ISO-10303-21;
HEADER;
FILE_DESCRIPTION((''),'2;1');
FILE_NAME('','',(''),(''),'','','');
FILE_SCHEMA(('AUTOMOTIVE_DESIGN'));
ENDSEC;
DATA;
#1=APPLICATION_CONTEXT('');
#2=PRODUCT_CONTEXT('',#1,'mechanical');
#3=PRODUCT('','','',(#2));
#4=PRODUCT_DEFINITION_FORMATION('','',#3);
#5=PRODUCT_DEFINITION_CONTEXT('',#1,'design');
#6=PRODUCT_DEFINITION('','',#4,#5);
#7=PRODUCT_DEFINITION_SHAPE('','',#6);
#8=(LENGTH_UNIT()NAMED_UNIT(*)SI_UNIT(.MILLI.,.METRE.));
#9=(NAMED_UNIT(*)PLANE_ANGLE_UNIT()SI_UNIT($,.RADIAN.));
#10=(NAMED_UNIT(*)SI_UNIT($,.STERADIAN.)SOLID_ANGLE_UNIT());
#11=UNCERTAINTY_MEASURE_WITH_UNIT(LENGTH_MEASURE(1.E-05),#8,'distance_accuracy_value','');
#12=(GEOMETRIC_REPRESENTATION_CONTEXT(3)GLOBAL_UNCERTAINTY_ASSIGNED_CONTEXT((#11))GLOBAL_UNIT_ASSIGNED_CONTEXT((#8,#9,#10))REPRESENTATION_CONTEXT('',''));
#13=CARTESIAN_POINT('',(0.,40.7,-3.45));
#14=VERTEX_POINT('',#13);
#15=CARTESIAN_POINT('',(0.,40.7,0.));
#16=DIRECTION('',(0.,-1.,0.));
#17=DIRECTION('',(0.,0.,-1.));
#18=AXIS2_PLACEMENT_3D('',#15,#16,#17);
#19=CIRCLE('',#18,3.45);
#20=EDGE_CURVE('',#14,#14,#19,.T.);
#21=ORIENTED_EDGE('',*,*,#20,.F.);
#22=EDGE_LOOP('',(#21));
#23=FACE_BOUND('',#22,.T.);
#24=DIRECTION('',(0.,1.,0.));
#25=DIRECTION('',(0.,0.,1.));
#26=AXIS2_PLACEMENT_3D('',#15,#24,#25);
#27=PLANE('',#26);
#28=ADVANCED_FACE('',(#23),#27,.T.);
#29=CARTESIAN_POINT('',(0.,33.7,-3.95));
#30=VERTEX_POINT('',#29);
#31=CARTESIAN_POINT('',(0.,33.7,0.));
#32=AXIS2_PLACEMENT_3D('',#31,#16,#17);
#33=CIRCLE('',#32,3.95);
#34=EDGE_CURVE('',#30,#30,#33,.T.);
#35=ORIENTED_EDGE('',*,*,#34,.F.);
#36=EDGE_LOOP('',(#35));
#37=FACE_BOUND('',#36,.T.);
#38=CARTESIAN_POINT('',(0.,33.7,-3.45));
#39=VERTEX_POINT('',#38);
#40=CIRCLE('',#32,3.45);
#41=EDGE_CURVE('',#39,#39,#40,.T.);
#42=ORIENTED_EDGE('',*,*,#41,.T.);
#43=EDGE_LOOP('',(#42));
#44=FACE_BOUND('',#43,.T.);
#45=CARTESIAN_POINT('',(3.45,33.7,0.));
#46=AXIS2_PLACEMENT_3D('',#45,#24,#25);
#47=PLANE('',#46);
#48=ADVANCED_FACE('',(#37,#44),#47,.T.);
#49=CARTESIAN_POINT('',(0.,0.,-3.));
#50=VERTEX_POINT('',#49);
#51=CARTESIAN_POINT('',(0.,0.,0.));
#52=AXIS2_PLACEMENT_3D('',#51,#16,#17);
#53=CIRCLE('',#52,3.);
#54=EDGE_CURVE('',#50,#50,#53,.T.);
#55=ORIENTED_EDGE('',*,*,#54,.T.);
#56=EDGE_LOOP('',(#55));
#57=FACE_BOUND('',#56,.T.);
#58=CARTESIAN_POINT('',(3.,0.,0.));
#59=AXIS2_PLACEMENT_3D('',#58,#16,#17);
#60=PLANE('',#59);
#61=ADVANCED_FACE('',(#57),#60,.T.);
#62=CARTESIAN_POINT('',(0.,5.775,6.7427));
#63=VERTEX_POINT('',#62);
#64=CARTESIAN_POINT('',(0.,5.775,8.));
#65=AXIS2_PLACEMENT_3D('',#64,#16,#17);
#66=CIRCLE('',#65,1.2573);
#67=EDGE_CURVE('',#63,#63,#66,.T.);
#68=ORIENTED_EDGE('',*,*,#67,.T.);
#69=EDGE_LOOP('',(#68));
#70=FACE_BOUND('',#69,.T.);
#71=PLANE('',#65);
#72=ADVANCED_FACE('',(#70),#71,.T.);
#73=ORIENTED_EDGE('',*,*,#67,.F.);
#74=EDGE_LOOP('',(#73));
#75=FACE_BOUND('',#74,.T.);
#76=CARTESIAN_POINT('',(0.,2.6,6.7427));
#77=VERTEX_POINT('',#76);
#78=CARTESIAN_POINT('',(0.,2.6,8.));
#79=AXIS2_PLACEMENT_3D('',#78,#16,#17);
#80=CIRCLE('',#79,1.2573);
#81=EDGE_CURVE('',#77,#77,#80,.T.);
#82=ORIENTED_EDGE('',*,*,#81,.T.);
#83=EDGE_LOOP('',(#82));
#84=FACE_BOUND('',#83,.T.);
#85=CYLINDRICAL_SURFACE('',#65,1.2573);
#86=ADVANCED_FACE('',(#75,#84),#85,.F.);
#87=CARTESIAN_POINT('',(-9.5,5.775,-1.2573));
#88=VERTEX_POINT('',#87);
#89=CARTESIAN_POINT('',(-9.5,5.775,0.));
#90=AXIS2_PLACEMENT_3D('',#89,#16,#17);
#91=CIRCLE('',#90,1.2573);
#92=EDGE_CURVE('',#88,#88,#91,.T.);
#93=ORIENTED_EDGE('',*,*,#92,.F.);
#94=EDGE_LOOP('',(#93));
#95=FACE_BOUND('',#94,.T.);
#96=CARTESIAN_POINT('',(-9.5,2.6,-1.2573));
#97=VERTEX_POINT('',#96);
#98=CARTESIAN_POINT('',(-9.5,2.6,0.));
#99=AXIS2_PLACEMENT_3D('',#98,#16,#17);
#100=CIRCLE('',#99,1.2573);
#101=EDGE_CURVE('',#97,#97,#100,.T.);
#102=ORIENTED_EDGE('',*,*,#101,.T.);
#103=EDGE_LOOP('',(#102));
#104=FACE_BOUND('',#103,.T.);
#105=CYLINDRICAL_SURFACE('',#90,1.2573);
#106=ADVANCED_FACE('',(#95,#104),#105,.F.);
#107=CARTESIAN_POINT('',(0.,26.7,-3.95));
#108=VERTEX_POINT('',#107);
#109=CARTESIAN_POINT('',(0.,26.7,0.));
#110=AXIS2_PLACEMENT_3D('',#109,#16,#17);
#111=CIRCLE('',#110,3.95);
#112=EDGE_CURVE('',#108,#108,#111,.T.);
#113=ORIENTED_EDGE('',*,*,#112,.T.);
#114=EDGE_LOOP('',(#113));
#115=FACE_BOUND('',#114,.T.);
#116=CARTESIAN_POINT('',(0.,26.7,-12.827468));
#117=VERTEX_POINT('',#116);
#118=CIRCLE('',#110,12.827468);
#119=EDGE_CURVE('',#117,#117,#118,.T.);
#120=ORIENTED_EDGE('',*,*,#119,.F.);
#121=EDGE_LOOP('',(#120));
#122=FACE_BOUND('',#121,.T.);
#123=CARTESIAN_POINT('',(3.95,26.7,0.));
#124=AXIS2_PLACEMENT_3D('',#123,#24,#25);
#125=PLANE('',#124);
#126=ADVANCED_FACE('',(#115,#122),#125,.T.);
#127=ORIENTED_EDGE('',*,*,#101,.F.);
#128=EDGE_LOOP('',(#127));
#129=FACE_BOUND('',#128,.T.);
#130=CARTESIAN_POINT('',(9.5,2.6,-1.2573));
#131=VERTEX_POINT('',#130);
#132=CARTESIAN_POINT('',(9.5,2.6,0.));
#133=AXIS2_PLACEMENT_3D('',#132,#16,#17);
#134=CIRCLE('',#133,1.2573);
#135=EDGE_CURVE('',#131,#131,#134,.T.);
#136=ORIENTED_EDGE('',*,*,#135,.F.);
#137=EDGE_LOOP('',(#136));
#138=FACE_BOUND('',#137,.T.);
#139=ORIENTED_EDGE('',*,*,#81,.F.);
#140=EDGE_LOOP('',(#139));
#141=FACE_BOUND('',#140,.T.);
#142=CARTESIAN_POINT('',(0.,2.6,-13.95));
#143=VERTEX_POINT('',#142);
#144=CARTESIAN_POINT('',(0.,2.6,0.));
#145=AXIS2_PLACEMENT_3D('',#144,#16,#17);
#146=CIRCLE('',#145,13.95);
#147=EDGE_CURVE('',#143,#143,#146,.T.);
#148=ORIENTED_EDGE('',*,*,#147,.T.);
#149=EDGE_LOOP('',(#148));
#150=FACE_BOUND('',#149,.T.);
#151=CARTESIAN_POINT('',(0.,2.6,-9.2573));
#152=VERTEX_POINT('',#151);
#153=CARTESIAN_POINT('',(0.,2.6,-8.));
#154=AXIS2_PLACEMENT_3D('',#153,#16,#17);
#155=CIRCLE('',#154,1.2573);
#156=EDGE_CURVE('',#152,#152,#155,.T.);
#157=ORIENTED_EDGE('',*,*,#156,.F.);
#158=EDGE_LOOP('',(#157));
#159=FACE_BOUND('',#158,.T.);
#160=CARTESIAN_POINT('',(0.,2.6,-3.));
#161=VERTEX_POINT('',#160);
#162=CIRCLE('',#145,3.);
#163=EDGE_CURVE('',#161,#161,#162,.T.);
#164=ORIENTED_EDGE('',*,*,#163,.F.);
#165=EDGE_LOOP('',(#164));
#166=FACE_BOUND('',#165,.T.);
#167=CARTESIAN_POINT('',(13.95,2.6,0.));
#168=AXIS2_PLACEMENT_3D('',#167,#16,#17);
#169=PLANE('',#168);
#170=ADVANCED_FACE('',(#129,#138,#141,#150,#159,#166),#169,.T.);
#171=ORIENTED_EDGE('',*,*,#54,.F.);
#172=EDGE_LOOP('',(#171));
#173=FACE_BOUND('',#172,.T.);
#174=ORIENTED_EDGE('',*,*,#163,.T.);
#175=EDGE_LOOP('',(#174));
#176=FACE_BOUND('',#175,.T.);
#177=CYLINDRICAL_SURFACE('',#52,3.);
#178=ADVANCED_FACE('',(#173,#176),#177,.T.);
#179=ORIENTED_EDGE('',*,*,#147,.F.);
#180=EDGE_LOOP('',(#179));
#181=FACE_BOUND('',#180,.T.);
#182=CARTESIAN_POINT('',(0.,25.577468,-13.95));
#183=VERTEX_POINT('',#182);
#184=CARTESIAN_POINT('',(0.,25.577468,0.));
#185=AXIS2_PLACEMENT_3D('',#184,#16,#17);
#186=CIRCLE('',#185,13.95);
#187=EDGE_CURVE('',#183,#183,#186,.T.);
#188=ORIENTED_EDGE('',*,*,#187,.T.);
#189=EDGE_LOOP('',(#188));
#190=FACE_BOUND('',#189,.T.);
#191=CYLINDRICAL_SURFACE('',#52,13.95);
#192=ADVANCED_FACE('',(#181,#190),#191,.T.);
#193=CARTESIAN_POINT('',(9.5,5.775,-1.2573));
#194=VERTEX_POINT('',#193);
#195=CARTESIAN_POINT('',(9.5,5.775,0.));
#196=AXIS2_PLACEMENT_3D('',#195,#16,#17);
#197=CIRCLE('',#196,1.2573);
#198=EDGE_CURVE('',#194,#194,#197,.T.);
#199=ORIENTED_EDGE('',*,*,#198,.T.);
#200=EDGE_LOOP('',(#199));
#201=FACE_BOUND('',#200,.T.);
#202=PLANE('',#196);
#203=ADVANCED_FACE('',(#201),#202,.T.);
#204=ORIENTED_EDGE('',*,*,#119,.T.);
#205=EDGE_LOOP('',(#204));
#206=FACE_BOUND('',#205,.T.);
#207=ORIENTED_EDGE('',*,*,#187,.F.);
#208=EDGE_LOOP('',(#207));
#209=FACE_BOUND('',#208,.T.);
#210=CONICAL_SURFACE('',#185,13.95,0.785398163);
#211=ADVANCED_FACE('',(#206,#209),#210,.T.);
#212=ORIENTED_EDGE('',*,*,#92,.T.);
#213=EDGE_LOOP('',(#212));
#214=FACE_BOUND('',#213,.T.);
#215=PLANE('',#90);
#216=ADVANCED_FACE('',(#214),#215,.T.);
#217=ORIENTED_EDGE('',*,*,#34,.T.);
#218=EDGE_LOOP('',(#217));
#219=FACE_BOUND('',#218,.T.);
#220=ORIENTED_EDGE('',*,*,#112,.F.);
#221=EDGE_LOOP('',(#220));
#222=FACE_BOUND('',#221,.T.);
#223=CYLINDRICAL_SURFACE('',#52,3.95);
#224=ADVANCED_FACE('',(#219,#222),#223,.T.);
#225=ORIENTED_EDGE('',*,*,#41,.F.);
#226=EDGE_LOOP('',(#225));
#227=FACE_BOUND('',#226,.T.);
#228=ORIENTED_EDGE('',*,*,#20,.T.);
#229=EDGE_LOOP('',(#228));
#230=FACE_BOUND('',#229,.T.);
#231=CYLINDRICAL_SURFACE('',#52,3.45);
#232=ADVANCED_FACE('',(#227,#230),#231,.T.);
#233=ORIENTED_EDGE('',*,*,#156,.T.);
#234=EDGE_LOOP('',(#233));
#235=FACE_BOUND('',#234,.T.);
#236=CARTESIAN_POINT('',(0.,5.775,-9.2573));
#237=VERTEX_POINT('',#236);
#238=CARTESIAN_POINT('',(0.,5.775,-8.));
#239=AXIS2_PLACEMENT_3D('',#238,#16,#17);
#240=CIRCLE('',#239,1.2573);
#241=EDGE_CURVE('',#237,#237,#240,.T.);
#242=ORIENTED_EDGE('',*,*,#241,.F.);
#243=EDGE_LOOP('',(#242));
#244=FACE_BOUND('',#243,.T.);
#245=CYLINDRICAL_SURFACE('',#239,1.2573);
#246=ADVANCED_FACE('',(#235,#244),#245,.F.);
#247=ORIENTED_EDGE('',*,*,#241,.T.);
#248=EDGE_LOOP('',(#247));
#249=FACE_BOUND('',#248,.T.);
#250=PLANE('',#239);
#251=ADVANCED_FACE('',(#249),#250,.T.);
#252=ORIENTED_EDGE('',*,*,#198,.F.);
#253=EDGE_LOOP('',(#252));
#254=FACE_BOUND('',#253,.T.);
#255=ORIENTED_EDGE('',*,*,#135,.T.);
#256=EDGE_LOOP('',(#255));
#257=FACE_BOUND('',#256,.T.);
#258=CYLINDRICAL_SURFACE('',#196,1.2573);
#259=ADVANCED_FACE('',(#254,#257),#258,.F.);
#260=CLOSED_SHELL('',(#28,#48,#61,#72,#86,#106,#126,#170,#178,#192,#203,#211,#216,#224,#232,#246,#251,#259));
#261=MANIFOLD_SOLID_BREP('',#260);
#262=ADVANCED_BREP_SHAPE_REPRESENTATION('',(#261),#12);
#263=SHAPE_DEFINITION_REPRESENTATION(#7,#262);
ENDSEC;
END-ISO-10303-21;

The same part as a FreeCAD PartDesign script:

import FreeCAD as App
import Part
import Sketcher
Q = App.Units.Quantity


def add_polygon(sketch, points):
    """Adds a closed chain of lines whose ends are joined by coincident constraints."""
    first, n = sketch.GeometryCount, len(points)
    for a, b in zip(points, points[1:] + points[:1]):
        sketch.addGeometry(Part.LineSegment(App.Vector(*a, 0), App.Vector(*b, 0)), False)
    for i in range(n):
        sketch.addConstraint(Sketcher.Constraint("Coincident", first + i, 2, first + (i + 1) % n, 1))

doc = App.newDocument("Part")
body = doc.addObject("PartDesign::Body", "Body")

# Sketch on XY plane
sketch1 = doc.addObject("Sketcher::SketchObject", "Sketch")
body.addObject(sketch1)
sketch1.AttachmentSupport = (doc.XY_Plane, [""])
sketch1.MapMode = "FlatFace"
add_polygon(sketch1, [(3.45, 40.7), (0, 40.7), (0, 0), (3, 0), (3, 2.6), (13.95, 2.6), (13.95, 25.577468), (12.827468, 26.7), (3.95, 26.7), (3.95, 33.7), (3.45, 33.7)])  # lines 0-10
sketch1.addConstraint(Sketcher.Constraint("Horizontal", 0))
sketch1.addConstraint(Sketcher.Constraint("Vertical", 1))
sketch1.addConstraint(Sketcher.Constraint("Horizontal", 2))
sketch1.addConstraint(Sketcher.Constraint("Vertical", 3))
sketch1.addConstraint(Sketcher.Constraint("Horizontal", 4))
sketch1.addConstraint(Sketcher.Constraint("Vertical", 5))
sketch1.addConstraint(Sketcher.Constraint("Horizontal", 7))
sketch1.addConstraint(Sketcher.Constraint("Vertical", 8))
sketch1.addConstraint(Sketcher.Constraint("Horizontal", 9))
sketch1.addConstraint(Sketcher.Constraint("Vertical", 10))
sketch1.addConstraint(Sketcher.Constraint("Coincident", 1, 2, -1, 1))
sketch1.addConstraint(Sketcher.Constraint("Equal", 8, 10))
sketch1.addConstraint(Sketcher.Constraint("DistanceX", 2, 1, 2, 2, 3.0))
sketch1.addConstraint(Sketcher.Constraint("DistanceY", 8, 1, 8, 2, 7.0))
sketch1.addConstraint(Sketcher.Constraint("Angle", 6, Q("135 deg")))
sketch1.addConstraint(Sketcher.Constraint("DistanceX", 9, 2, 9, 1, 0.5))
sketch1.addConstraint(Sketcher.Constraint("DistanceY", 1, 2, 1, 1, 40.7))
sketch1.addConstraint(Sketcher.Constraint("DistanceY", 3, 1, 3, 2, 2.6))
sketch1.addConstraint(Sketcher.Constraint("DistanceX", 7, 2, 5, 2, 10.0))
sketch1.addConstraint(Sketcher.Constraint("DistanceX", 0, 2, 0, 1, 3.45))
sketch1.addConstraint(Sketcher.Constraint("Distance", 6, 1.5875))
revolution = doc.addObject("PartDesign::Revolution", "Revolution")
body.addObject(revolution)
revolution.Profile = sketch1
revolution.ReferenceAxis = (sketch1, ["V_Axis"])
revolution.Angle = 360

# Sketch on XZ plane
sketch2 = doc.addObject("Sketcher::SketchObject", "Sketch001")
body.addObject(sketch2)
sketch2.AttachmentSupport = (doc.XZ_Plane, [""])
sketch2.MapMode = "FlatFace"
sketch2.AttachmentOffset = App.Placement(App.Vector(0, 0, -2.6), App.Rotation())
sketch2.addGeometry(Part.Circle(App.Vector(-9.5, 0, 0), App.Vector(0, 0, 1), 1.2573), False)
sketch2.addGeometry(Part.Circle(App.Vector(0, -8, 0), App.Vector(0, 0, 1), 1.2573), False)
sketch2.addGeometry(Part.Circle(App.Vector(9.5, 0, 0), App.Vector(0, 0, 1), 1.2573), False)
sketch2.addGeometry(Part.Circle(App.Vector(0, 8, 0), App.Vector(0, 0, 1), 1.2573), False)
sketch2.addConstraint(Sketcher.Constraint("Equal", 0, 1))
sketch2.addConstraint(Sketcher.Constraint("Equal", 1, 2))
sketch2.addConstraint(Sketcher.Constraint("Equal", 2, 3))
sketch2.addConstraint(Sketcher.Constraint("Symmetric", 0, 3, 2, 3, -1, 1))
sketch2.addConstraint(Sketcher.Constraint("Symmetric", 1, 3, 3, 3, -1, 1))
sketch2.addConstraint(Sketcher.Constraint("PointOnObject", 0, 3, -1))
sketch2.addConstraint(Sketcher.Constraint("PointOnObject", 1, 3, -2))
sketch2.addConstraint(Sketcher.Constraint("DistanceY", 1, 3, -1, 1, 8.0))
sketch2.addConstraint(Sketcher.Constraint("DistanceX", 0, 3, 2, 3, 19.0))
sketch2.addConstraint(Sketcher.Constraint("Diameter", 0, 2.5146))
pocket1 = doc.addObject("PartDesign::Pocket", "Pocket")
body.addObject(pocket1)
pocket1.Profile = sketch2
pocket1.Length = 3.175

doc.recompute()
